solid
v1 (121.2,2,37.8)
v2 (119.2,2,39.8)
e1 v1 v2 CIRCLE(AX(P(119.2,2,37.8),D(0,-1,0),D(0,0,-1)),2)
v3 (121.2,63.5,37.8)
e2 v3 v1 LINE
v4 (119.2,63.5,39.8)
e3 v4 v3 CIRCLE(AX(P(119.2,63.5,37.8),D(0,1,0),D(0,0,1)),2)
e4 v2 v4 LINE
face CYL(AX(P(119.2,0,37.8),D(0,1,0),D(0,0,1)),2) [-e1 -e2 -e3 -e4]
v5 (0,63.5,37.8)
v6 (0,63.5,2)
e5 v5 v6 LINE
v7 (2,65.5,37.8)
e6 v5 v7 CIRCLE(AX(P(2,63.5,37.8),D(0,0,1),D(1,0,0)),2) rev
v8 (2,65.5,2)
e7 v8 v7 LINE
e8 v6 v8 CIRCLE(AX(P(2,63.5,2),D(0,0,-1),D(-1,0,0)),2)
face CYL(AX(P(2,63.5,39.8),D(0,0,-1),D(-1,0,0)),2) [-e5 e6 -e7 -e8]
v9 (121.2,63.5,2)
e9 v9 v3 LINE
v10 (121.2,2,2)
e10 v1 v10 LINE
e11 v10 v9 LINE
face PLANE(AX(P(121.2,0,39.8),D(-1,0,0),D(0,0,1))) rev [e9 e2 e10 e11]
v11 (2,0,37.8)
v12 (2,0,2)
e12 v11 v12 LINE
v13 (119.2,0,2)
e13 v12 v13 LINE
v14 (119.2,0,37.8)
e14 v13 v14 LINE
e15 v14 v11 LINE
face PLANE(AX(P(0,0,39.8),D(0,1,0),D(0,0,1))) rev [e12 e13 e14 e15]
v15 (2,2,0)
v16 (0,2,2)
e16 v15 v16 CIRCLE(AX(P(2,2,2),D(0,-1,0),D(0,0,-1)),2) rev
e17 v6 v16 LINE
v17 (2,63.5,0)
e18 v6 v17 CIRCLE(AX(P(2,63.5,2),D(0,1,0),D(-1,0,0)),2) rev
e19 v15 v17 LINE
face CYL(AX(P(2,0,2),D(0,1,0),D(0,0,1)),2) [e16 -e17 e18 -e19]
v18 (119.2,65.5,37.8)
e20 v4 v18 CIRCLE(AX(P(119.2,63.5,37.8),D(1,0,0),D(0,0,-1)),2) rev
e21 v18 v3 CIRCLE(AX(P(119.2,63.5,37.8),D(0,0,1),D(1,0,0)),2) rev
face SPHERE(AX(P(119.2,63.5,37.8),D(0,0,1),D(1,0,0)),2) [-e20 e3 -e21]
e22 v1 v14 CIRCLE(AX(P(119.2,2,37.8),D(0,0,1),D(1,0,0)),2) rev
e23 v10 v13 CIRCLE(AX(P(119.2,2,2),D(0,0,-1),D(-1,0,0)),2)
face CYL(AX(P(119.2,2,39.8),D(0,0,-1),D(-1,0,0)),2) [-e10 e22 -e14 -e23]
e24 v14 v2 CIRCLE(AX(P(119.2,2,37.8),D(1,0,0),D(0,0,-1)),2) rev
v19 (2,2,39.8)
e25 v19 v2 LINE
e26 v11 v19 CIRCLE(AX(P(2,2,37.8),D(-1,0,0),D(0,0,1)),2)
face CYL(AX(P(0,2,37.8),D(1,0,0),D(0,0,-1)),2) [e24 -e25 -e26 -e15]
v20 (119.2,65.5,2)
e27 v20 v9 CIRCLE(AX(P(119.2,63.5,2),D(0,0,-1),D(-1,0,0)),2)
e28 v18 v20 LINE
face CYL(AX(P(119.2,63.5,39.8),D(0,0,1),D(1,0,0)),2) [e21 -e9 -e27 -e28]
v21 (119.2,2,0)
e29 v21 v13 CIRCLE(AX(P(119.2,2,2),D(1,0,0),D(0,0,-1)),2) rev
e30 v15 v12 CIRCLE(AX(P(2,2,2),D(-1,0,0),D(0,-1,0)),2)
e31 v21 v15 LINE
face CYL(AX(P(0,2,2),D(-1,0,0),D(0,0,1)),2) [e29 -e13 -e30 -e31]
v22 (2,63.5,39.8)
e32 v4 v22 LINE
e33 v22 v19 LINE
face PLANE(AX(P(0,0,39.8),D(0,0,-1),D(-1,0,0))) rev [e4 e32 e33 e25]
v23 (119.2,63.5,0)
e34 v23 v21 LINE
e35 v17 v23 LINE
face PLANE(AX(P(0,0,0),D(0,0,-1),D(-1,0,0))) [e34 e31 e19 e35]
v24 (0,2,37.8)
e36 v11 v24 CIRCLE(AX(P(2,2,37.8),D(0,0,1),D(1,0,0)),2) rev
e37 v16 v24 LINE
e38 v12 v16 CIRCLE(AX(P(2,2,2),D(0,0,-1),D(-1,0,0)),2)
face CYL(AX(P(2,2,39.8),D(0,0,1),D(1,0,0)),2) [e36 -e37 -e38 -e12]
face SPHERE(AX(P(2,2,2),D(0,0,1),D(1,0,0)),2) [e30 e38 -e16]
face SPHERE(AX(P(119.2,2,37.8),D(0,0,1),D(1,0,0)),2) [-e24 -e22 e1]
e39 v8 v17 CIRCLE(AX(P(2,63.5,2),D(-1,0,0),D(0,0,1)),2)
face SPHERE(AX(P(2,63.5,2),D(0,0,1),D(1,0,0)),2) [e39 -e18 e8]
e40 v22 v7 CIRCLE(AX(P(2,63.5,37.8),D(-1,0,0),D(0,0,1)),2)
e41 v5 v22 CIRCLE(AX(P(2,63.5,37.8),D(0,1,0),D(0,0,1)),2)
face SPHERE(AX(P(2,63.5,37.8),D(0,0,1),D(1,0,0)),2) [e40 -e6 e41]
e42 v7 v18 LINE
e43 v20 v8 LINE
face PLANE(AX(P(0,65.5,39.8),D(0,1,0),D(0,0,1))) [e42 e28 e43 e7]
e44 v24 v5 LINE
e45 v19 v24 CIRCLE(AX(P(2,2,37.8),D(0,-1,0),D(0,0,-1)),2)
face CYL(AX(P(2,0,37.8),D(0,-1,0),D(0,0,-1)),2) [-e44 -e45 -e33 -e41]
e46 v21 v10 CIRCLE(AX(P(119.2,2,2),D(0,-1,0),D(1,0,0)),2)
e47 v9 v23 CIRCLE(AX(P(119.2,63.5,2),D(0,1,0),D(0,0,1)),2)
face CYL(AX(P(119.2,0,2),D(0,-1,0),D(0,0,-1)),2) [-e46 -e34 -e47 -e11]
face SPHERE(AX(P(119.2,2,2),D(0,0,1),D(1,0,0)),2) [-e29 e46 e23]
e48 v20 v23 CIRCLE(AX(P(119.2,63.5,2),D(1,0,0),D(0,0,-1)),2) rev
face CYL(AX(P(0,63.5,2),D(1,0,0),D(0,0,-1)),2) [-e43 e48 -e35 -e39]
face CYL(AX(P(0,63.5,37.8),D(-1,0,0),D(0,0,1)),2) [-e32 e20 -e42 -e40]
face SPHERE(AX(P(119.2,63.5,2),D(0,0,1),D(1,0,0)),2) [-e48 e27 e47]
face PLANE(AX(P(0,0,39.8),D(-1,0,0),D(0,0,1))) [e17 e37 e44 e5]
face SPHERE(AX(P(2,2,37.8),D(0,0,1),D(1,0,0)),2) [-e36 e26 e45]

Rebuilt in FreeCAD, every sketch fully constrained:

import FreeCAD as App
import Part
import Sketcher

doc = App.newDocument("Part")
body = doc.addObject("PartDesign::Body", "Body")

sketch1 = body.newObject("Sketcher::SketchObject", "Sketch")
sketch1.AttachmentSupport = (doc.getObject("XY_Plane"), [""])
sketch1.MapMode = "FlatFace"
sketch1.addGeometry([
    Part.LineSegment(App.Vector(0, 66, 0), App.Vector(0, 0, 0)),
    Part.LineSegment(App.Vector(0, 0, 0), App.Vector(121, 0, 0)),
    Part.LineSegment(App.Vector(121, 0, 0), App.Vector(121, 66, 0)),
    Part.LineSegment(App.Vector(121, 66, 0), App.Vector(0, 66, 0)),
], False)
sketch1.addConstraint([
    Sketcher.Constraint("Coincident", 0, 2, 1, 1),
    Sketcher.Constraint("Coincident", 1, 2, 2, 1),
    Sketcher.Constraint("Coincident", 2, 2, 3, 1),
    Sketcher.Constraint("Coincident", 3, 2, 0, 1),
    Sketcher.Constraint("Vertical", 0),
    Sketcher.Constraint("Horizontal", 1),
    Sketcher.Constraint("Vertical", 2),
    Sketcher.Constraint("Horizontal", 3),
    Sketcher.Constraint("Coincident", 0, 2, -1, 1),
    Sketcher.Constraint("DistanceX", 1, 1, 1, 2, 121.2),
    Sketcher.Constraint("DistanceY", 0, 2, 0, 1, 65.5),
])
pad1 = body.newObject("PartDesign::Pad", "Pad")
pad1.Profile = sketch1
pad1.Length = 39.8
doc.recompute()

fillet = body.newObject("PartDesign::Fillet", "Fillet")
fillet.Base = (pad1, ["Edge1"])
fillet.UseAllEdges = True
fillet.Radius = 2

doc.recompute()
